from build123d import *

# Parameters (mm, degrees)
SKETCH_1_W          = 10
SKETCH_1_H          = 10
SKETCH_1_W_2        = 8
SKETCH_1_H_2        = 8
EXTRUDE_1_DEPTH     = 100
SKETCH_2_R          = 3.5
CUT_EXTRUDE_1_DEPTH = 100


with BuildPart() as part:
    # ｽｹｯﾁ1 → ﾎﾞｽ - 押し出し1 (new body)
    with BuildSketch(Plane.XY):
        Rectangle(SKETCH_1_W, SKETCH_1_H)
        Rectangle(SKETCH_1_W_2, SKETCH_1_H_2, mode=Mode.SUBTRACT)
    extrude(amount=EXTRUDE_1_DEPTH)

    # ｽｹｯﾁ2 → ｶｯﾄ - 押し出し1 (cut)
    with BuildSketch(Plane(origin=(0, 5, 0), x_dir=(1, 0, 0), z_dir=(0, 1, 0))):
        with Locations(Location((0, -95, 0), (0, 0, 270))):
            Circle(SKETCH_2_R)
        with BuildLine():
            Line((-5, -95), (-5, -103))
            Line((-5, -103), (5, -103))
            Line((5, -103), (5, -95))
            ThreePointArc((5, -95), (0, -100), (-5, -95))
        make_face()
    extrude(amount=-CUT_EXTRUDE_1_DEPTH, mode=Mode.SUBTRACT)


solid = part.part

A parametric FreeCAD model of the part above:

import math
import FreeCAD as App
import Part
import Sketcher
Q = App.Units.Quantity


def add_polygon(sketch, points):
    """Adds a closed chain of lines whose ends are joined by coincident constraints."""
    first, n = sketch.GeometryCount, len(points)
    for a, b in zip(points, points[1:] + points[:1]):
        sketch.addGeometry(Part.LineSegment(App.Vector(*a, 0), App.Vector(*b, 0)), False)
    for i in range(n):
        sketch.addConstraint(Sketcher.Constraint("Coincident", first + i, 2, first + (i + 1) % n, 1))

doc = App.newDocument("Part")
body = doc.addObject("PartDesign::Body", "Body")

sketch1 = body.newObject("Sketcher::SketchObject", "Sketch")
sketch1.AttachmentSupport = (doc.getObject("XY_Plane"), [""])
sketch1.MapMode = "FlatFace"
add_polygon(sketch1, [(-5, 5), (-5, -5), (5, -5), (5, 5)])
add_polygon(sketch1, [(4, -4), (-4, -4), (-4, 4), (4, 4)])
sketch1.addConstraint([
    Sketcher.Constraint("Vertical", 0),
    Sketcher.Constraint("Horizontal", 1),
    Sketcher.Constraint("Vertical", 2),
    Sketcher.Constraint("Horizontal", 3),
    Sketcher.Constraint("Horizontal", 4),
    Sketcher.Constraint("Vertical", 5),
    Sketcher.Constraint("Horizontal", 6),
    Sketcher.Constraint("Vertical", 7),
    Sketcher.Constraint("Symmetric", 0, 2, 2, 2, -1, 1),
    Sketcher.Constraint("Symmetric", 4, 2, 6, 2, -1, 1),
    Sketcher.Constraint("Equal", 3, 0),
    Sketcher.Constraint("Equal", 6, 5),
    Sketcher.Constraint("DistanceX", 1, 1, 1, 2, Q("10 mm")),
    Sketcher.Constraint("DistanceX", 4, 2, 4, 1, Q("8 mm")),
])
pad1 = body.newObject("PartDesign::Pad", "Pad")
pad1.Profile = sketch1
pad1.Length = 100

sketch2 = body.newObject("Sketcher::SketchObject", "Sketch001")
sketch2.AttachmentSupport = (doc.getObject("XZ_Plane"), [""])
sketch2.MapMode = "FlatFace"
sketch2.AttachmentOffset = App.Placement(App.Vector(0, 0, -5), App.Rotation())
sketch2.addGeometry([
    Part.Circle(App.Vector(0, 95, 0), App.Vector(0, 0, 1), 3.5),
    Part.LineSegment(App.Vector(-5, 95, 0), App.Vector(-5, 103, 0)),
    Part.LineSegment(App.Vector(-5, 103, 0), App.Vector(5, 103, 0)),
    Part.LineSegment(App.Vector(5, 103, 0), App.Vector(5, 95, 0)),
    Part.ArcOfCircle(Part.Circle(App.Vector(0, 95, 0), App.Vector(0, 0, 1), 5), math.radians(0), math.radians(180)),
], False)
sketch2.addConstraint([
    Sketcher.Constraint("Coincident", 1, 2, 2, 1),
    Sketcher.Constraint("Coincident", 2, 2, 3, 1),
    Sketcher.Constraint("Tangent", 3, 2, 4, 1),
    Sketcher.Constraint("Tangent", 4, 2, 1, 1),
    Sketcher.Constraint("Vertical", 1),
    Sketcher.Constraint("Horizontal", 2),
    Sketcher.Constraint("Vertical", 3),
    Sketcher.Constraint("Coincident", 4, 3, 0, 3),
    Sketcher.Constraint("PointOnObject", 0, 3, -2),
    Sketcher.Constraint("Diameter", 0, Q("7 mm")),
    Sketcher.Constraint("Radius", 4, Q("5 mm")),
    Sketcher.Constraint("DistanceY", 1, 1, 1, 2, Q("8 mm")),
    Sketcher.Constraint("DistanceY", -1, 1, 0, 3, Q("95 mm")),
])
pocket1 = body.newObject("PartDesign::Pocket", "Pocket")
pocket1.Profile = sketch2
pocket1.Length = 100
pocket1.Reversed = True

doc.recompute()
